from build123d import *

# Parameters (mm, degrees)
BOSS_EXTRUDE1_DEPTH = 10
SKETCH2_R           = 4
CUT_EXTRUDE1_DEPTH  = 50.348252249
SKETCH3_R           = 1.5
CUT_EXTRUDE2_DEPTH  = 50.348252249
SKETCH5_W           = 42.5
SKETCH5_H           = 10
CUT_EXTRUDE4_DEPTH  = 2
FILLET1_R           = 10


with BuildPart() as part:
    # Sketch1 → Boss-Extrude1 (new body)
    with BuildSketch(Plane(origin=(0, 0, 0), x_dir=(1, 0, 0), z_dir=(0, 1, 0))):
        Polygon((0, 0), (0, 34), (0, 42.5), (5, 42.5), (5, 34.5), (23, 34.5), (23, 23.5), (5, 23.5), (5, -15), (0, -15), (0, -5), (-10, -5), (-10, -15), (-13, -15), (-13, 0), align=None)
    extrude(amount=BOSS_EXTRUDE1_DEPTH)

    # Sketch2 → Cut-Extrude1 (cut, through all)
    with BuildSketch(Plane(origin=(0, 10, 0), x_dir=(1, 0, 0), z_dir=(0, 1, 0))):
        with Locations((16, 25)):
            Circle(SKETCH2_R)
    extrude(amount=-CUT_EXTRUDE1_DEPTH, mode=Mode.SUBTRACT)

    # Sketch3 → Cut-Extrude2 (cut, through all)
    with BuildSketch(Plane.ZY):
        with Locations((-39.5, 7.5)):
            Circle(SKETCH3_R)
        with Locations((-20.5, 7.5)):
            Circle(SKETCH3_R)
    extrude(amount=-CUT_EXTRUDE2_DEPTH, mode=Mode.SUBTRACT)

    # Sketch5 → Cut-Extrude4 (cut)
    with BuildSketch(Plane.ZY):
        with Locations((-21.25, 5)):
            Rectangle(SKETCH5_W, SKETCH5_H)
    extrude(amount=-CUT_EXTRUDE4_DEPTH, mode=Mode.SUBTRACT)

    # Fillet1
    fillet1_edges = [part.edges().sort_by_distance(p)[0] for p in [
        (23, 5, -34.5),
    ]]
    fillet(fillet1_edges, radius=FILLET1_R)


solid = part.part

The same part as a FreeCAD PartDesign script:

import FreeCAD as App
import Part
import Sketcher

V = App.Vector


def edges_at(feature, points):
    """Names of the edges that pass closest to the given points."""
    edges = feature.Shape.Edges
    near = lambda p: min(range(len(edges)), key=lambda i: edges[i].distToShape(Part.Vertex(*p))[0])
    return sorted({f"Edge{near(p) + 1}" for p in points})


def add_polygon(sketch, points):
    """Adds a closed chain of lines whose ends are joined by coincident constraints."""
    first, n = sketch.GeometryCount, len(points)
    for a, b in zip(points, points[1:] + points[:1]):
        sketch.addGeometry(Part.LineSegment(App.Vector(*a, 0), App.Vector(*b, 0)), False)
    for i in range(n):
        sketch.addConstraint(Sketcher.Constraint("Coincident", first + i, 2, first + (i + 1) % n, 1))

doc = App.newDocument("Part")
params = doc.addObject("Spreadsheet::Sheet", "Params")
for row, (alias, value) in enumerate([
    ("sketch1_width", "13 mm"),
    ("sketch1_width2", "3 mm"),
    ("sketch1_width3", "5 mm"),
    ("sketch1_width4", "18 mm"),
    ("sketch1_height", "15 mm"),
    ("pad1_length", "10 mm"),
    ("sketch2_diameter", "8 mm"),
    ("sketch3_diameter", "3 mm"),
    ("sketch4_width", "10 mm"),
    ("sketch4_height", "42.5 mm"),
    ("pocket3_length", "2 mm"),
    ("fillet_radius", "10 mm"),
], start=1):
    params.set(f"A{row}", alias)
    params.set(f"B{row}", "=" + value)
    params.setAlias(f"B{row}", alias)

body = doc.addObject("PartDesign::Body", "Body")

sketch1 = doc.addObject("Sketcher::SketchObject", "Sketch")
body.addObject(sketch1)
sketch1.AttachmentSupport = (doc.XZ_Plane, [""])
sketch1.MapMode = "FlatFace"
add_polygon(sketch1, [(0, -42.5), (0, 0), (-13, 0), (-13, 15), (-10, 15), (-10, 5), (0, 5), (0, 15), (5, 15), (5, -23.5), (23, -23.5), (23, -34.5), (5, -34.5), (5, -42.5)])
sketch1.addConstraint([
    Sketcher.Constraint("Vertical", 0),
    Sketcher.Constraint("Horizontal", 1),
    Sketcher.Constraint("Vertical", 2),
    Sketcher.Constraint("Horizontal", 3),
    Sketcher.Constraint("Vertical", 4),
    Sketcher.Constraint("Horizontal", 5),
    Sketcher.Constraint("Vertical", 6),
    Sketcher.Constraint("Horizontal", 7),
    Sketcher.Constraint("Vertical", 8),
    Sketcher.Constraint("Horizontal", 9),
    Sketcher.Constraint("Vertical", 10),
    Sketcher.Constraint("Horizontal", 11),
    Sketcher.Constraint("Vertical", 12),
    Sketcher.Constraint("Horizontal", 13),
    Sketcher.Constraint("Coincident", 0, 2, -1, 1),
    Sketcher.Constraint("PointOnObject", 5, 2, -2),
    Sketcher.Constraint("Horizontal", 3, 2, 6, 2),
    Sketcher.Constraint("Vertical", 8, 2, 11, 2),
    Sketcher.Constraint("Equal", 5, 4),
    Sketcher.Constraint("DistanceX", 1, 2, 1, 1, 13.0),
    Sketcher.Constraint("DistanceX", 3, 1, 3, 2, 3.0),
    Sketcher.Constraint("DistanceX", 7, 1, 7, 2, 5.0),
    Sketcher.Constraint("DistanceX", 9, 1, 9, 2, 18.0),
    Sketcher.Constraint("DistanceY", 2, 1, 2, 2, 15.0),
    Sketcher.Constraint("DistanceY", 10, 2, 10, 1, 11.0),
    Sketcher.Constraint("DistanceY", 12, 2, 12, 1, 8.0),
    Sketcher.Constraint("DistanceY", 0, 1, 0, 2, 42.5),
])
sketch1.setExpression("Constraints[33]", "Params.sketch1_width")
sketch1.setExpression("Constraints[34]", "Params.sketch1_width2")
sketch1.setExpression("Constraints[35]", "Params.sketch1_width3")
sketch1.setExpression("Constraints[36]", "Params.sketch1_width4")
sketch1.setExpression("Constraints[37]", "Params.sketch1_height")
pad1 = doc.addObject("PartDesign::Pad", "Pad")
body.addObject(pad1)
pad1.Profile = sketch1
pad1.setExpression("Length", "Params.pad1_length")
pad1.Reversed = True

sketch2 = doc.addObject("Sketcher::SketchObject", "Sketch001")
body.addObject(sketch2)
sketch2.AttachmentSupport = (doc.XZ_Plane, [""])
sketch2.MapMode = "FlatFace"
sketch2.AttachmentOffset = App.Placement(V(0, 0, -10), App.Rotation())
sketch2.addGeometry(Part.Circle(V(16, -25, 0), V(0, 0, 1), 4), False)
sketch2.addConstraint([
    Sketcher.Constraint("Diameter", 0, 8.0),
    Sketcher.Constraint("DistanceX", -1, 1, 0, 3, 16.0),
    Sketcher.Constraint("DistanceY", 0, 3, -1, 1, 25.0),
])
sketch2.setExpression("Constraints[0]", "Params.sketch2_diameter")
pocket1 = doc.addObject("PartDesign::Pocket", "Pocket")
body.addObject(pocket1)
pocket1.Profile = sketch2
pocket1.Type = "ThroughAll"
pocket1.Reversed = True

sketch3 = doc.addObject("Sketcher::SketchObject", "Sketch002")
body.addObject(sketch3)
sketch3.AttachmentSupport = (doc.YZ_Plane, [""])
sketch3.MapMode = "FlatFace"
sketch3.addGeometry([
    Part.Circle(V(7.5, -39.5, 0), V(0, 0, 1), 1.5),
    Part.Circle(V(7.5, -20.5, 0), V(0, 0, 1), 1.5),
], False)
sketch3.addConstraint([
    Sketcher.Constraint("Equal", 0, 1),
    Sketcher.Constraint("Vertical", 0, 3, 1, 3),
    Sketcher.Constraint("Diameter", 0, 3.0),
    Sketcher.Constraint("DistanceY", 0, 3, 1, 3, 19.0),
    Sketcher.Constraint("DistanceX", -1, 1, 0, 3, 7.5),
    Sketcher.Constraint("DistanceY", 0, 3, -1, 1, 39.5),
])
sketch3.setExpression("Constraints[2]", "Params.sketch3_diameter")
pocket2 = doc.addObject("PartDesign::Pocket", "Pocket001")
body.addObject(pocket2)
pocket2.Profile = sketch3
pocket2.Type = "ThroughAll"
pocket2.Reversed = True

sketch4 = doc.addObject("Sketcher::SketchObject", "Sketch003")
body.addObject(sketch4)
sketch4.AttachmentSupport = (doc.YZ_Plane, [""])
sketch4.MapMode = "FlatFace"
add_polygon(sketch4, [(10, -42), (0, -42), (0, 0), (10, 0)])
sketch4.addConstraint([
    Sketcher.Constraint("Horizontal", 0),
    Sketcher.Constraint("Vertical", 1),
    Sketcher.Constraint("Horizontal", 2),
    Sketcher.Constraint("Vertical", 3),
    Sketcher.Constraint("Coincident", 1, 2, -1, 1),
    Sketcher.Constraint("DistanceX", 0, 2, 0, 1, 10.0),
    Sketcher.Constraint("DistanceY", 1, 1, 1, 2, 42.5),
])
sketch4.setExpression("Constraints[9]", "Params.sketch4_width")
sketch4.setExpression("Constraints[10]", "Params.sketch4_height")
pocket3 = doc.addObject("PartDesign::Pocket", "Pocket002")
body.addObject(pocket3)
pocket3.Profile = sketch4
pocket3.setExpression("Length", "Params.pocket3_length")
pocket3.Reversed = True
doc.recompute()

fillet = doc.addObject("PartDesign::Fillet", "Fillet")
body.addObject(fillet)
fillet.Base = (pocket3, edges_at(pocket3, [(23, 5, -34.5)]))
fillet.setExpression("Radius", "Params.fillet_radius")

doc.recompute()
